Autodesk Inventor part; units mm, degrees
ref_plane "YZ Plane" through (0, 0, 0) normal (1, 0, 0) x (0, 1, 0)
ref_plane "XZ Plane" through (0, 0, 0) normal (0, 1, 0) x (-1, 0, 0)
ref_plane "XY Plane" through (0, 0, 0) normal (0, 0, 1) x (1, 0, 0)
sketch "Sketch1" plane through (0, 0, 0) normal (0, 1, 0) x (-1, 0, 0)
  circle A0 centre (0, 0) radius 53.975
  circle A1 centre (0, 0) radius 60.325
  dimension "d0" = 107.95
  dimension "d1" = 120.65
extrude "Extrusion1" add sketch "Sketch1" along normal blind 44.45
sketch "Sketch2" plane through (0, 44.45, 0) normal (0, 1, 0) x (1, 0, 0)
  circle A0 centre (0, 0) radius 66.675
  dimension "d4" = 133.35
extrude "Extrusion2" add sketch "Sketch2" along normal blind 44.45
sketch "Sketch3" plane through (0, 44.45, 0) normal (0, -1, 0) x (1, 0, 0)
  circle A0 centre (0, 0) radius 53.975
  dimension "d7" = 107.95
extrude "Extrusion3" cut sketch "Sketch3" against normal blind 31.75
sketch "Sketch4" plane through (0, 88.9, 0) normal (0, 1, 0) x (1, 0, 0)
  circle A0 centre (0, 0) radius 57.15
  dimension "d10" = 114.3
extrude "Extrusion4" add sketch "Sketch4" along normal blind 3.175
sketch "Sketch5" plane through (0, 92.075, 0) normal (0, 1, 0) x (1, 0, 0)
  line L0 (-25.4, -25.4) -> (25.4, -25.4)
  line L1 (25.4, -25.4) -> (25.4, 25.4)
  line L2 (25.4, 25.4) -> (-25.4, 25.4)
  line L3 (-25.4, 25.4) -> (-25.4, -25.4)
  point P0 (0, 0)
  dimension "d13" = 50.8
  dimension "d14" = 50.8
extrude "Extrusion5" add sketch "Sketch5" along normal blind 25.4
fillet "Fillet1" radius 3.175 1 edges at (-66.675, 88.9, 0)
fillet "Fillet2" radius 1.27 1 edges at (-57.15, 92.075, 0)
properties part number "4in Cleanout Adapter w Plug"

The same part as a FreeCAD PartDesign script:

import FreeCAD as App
import Part
import Sketcher

V = App.Vector
Q = App.Units.Quantity


def edges_at(feature, points):
    """Names of the edges that pass closest to the given points."""
    edges = feature.Shape.Edges
    near = lambda p: min(range(len(edges)), key=lambda i: edges[i].distToShape(Part.Vertex(*p))[0])
    return sorted({f"Edge{near(p) + 1}" for p in points})

doc = App.newDocument("Part")
body = doc.addObject("PartDesign::Body", "Body")

# Sketch on XZ plane
sketch1 = body.newObject("Sketcher::SketchObject", "Sketch")
sketch1.AttachmentSupport = (doc.getObject("XZ_Plane"), [""])
sketch1.MapMode = "FlatFace"
sketch1.addGeometry(Part.Circle(V(0, 0, 0), V(0, 0, 1), 60.325), False)
sketch1.addGeometry(Part.Circle(V(0, 0, 0), V(0, 0, 1), 53.975), False)
sketch1.addConstraint(Sketcher.Constraint("Coincident", 0, 3, -1, 1))
sketch1.addConstraint(Sketcher.Constraint("Coincident", 1, 3, -1, 1))
sketch1.addConstraint(Sketcher.Constraint("Diameter", 0, Q("4.75 in")))
sketch1.addConstraint(Sketcher.Constraint("Diameter", 1, Q("4.25 in")))
pad1 = body.newObject("PartDesign::Pad", "Pad")
pad1.Profile = sketch1
pad1.Length = Q("1.75 in")
pad1.Reversed = True

# Sketch on XZ plane
sketch2 = body.newObject("Sketcher::SketchObject", "Sketch001")
sketch2.AttachmentSupport = (doc.getObject("XZ_Plane"), [""])
sketch2.MapMode = "FlatFace"
sketch2.AttachmentOffset = App.Placement(V(0, 0, -1.75 * 25.4), App.Rotation())
sketch2.addGeometry(Part.Circle(V(0, 0, 0), V(0, 0, 1), 66.675), False)
sketch2.addConstraint(Sketcher.Constraint("Coincident", 0, 3, -1, 1))
sketch2.addConstraint(Sketcher.Constraint("Diameter", 0, Q("5.25 in")))
pad2 = body.newObject("PartDesign::Pad", "Pad001")
pad2.Profile = sketch2
pad2.Length = Q("1.75 in")
pad2.Reversed = True

# Sketch on XZ plane
sketch3 = body.newObject("Sketcher::SketchObject", "Sketch002")
sketch3.AttachmentSupport = (doc.getObject("XZ_Plane"), [""])
sketch3.MapMode = "FlatFace"
sketch3.AttachmentOffset = App.Placement(V(0, 0, -1.75 * 25.4), App.Rotation())
sketch3.addGeometry(Part.Circle(V(0, 0, 0), V(0, 0, 1), 53.975), False)
sketch3.addConstraint(Sketcher.Constraint("Coincident", 0, 3, -1, 1))
sketch3.addConstraint(Sketcher.Constraint("Diameter", 0, Q("4.25 in")))
pocket1 = body.newObject("PartDesign::Pocket", "Pocket")
pocket1.Profile = sketch3
pocket1.Length = Q("1.25 in")

# Sketch on XZ plane
sketch4 = body.newObject("Sketcher::SketchObject", "Sketch003")
sketch4.AttachmentSupport = (doc.getObject("XZ_Plane"), [""])
sketch4.MapMode = "FlatFace"
sketch4.AttachmentOffset = App.Placement(V(0, 0, -3.5 * 25.4), App.Rotation())
sketch4.addGeometry(Part.Circle(V(0, 0, 0), V(0, 0, 1), 57.15), False)
sketch4.addConstraint(Sketcher.Constraint("Coincident", 0, 3, -1, 1))
sketch4.addConstraint(Sketcher.Constraint("Diameter", 0, Q("4.5 in")))
pad3 = body.newObject("PartDesign::Pad", "Pad002")
pad3.Profile = sketch4
pad3.Length = Q("0.125 in")
pad3.Reversed = True

# Sketch on XZ plane
sketch5 = body.newObject("Sketcher::SketchObject", "Sketch004")
sketch5.AttachmentSupport = (doc.getObject("XZ_Plane"), [""])
sketch5.MapMode = "FlatFace"
sketch5.AttachmentOffset = App.Placement(V(0, 0, -3.625 * 25.4), App.Rotation())
sketch5.addGeometry(Part.LineSegment(V(-25.4, -25.4, 0), V(-25.4, 25.4, 0)), False)
sketch5.addGeometry(Part.LineSegment(V(-25.4, 25.4, 0), V(25.4, 25.4, 0)), False)
sketch5.addGeometry(Part.LineSegment(V(25.4, 25.4, 0), V(25.4, -25.4, 0)), False)
sketch5.addGeometry(Part.LineSegment(V(25.4, -25.4, 0), V(-25.4, -25.4, 0)), False)
sketch5.addConstraint(Sketcher.Constraint("Coincident", 0, 2, 1, 1))
sketch5.addConstraint(Sketcher.Constraint("Coincident", 1, 2, 2, 1))
sketch5.addConstraint(Sketcher.Constraint("Coincident", 2, 2, 3, 1))
sketch5.addConstraint(Sketcher.Constraint("Coincident", 3, 2, 0, 1))
sketch5.addConstraint(Sketcher.Constraint("Vertical", 0))
sketch5.addConstraint(Sketcher.Constraint("Horizontal", 1))
sketch5.addConstraint(Sketcher.Constraint("Vertical", 2))
sketch5.addConstraint(Sketcher.Constraint("Horizontal", 3))
sketch5.addConstraint(Sketcher.Constraint("Symmetric", 0, 2, 2, 2, -1, 1))
sketch5.addConstraint(Sketcher.Constraint("Equal", 3, 0))
sketch5.addConstraint(Sketcher.Constraint("DistanceX", 1, 1, 1, 2, Q("2 in")))
pad4 = body.newObject("PartDesign::Pad", "Pad003")
pad4.Profile = sketch5
pad4.Length = Q("1 in")
pad4.Reversed = True
doc.recompute()

fillet = body.newObject("PartDesign::Fillet", "Fillet")
fillet.Base = (pad4, edges_at(pad4, [(-66.675, 88.9, 0)]))
fillet.Radius = Q("0.125 in")
doc.recompute()

fillet2 = body.newObject("PartDesign::Fillet", "Fillet001")
fillet2.Base = (fillet, edges_at(fillet, [(-57.15, 92.075, 0)]))
fillet2.Radius = Q("0.05 in")

doc.recompute()
